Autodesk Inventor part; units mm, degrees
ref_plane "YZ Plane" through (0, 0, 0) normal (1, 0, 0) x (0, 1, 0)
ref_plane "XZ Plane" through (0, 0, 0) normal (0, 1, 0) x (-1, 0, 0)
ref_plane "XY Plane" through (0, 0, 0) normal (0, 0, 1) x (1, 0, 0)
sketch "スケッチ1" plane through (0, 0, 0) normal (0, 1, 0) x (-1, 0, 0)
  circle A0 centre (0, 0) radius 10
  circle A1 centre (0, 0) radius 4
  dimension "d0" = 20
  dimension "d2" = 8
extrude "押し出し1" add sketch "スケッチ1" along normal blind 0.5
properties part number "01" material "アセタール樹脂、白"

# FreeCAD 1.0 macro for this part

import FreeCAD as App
import Part
import Sketcher

V = App.Vector
Q = App.Units.Quantity

doc = App.newDocument("Part")
body = doc.addObject("PartDesign::Body", "Body")

# Sketch on XZ plane
sketch1 = body.newObject("Sketcher::SketchObject", "Sketch")
sketch1.AttachmentSupport = (doc.getObject("XZ_Plane"), [""])
sketch1.MapMode = "FlatFace"
sketch1.addGeometry([
    Part.Circle(V(0, 0, 0), V(0, 0, 1), 10),
    Part.Circle(V(0, 0, 0), V(0, 0, 1), 4),
], False)
sketch1.addConstraint([
    Sketcher.Constraint("Coincident", 0, 3, -1, 1),
    Sketcher.Constraint("Coincident", 1, 3, -1, 1),
    Sketcher.Constraint("Diameter", 0, Q("20 mm")),
    Sketcher.Constraint("Diameter", 1, Q("8 mm")),
])
pad1 = body.newObject("PartDesign::Pad", "Pad")
pad1.Profile = sketch1
pad1.Length = 0.5
pad1.Reversed = True

doc.recompute()
